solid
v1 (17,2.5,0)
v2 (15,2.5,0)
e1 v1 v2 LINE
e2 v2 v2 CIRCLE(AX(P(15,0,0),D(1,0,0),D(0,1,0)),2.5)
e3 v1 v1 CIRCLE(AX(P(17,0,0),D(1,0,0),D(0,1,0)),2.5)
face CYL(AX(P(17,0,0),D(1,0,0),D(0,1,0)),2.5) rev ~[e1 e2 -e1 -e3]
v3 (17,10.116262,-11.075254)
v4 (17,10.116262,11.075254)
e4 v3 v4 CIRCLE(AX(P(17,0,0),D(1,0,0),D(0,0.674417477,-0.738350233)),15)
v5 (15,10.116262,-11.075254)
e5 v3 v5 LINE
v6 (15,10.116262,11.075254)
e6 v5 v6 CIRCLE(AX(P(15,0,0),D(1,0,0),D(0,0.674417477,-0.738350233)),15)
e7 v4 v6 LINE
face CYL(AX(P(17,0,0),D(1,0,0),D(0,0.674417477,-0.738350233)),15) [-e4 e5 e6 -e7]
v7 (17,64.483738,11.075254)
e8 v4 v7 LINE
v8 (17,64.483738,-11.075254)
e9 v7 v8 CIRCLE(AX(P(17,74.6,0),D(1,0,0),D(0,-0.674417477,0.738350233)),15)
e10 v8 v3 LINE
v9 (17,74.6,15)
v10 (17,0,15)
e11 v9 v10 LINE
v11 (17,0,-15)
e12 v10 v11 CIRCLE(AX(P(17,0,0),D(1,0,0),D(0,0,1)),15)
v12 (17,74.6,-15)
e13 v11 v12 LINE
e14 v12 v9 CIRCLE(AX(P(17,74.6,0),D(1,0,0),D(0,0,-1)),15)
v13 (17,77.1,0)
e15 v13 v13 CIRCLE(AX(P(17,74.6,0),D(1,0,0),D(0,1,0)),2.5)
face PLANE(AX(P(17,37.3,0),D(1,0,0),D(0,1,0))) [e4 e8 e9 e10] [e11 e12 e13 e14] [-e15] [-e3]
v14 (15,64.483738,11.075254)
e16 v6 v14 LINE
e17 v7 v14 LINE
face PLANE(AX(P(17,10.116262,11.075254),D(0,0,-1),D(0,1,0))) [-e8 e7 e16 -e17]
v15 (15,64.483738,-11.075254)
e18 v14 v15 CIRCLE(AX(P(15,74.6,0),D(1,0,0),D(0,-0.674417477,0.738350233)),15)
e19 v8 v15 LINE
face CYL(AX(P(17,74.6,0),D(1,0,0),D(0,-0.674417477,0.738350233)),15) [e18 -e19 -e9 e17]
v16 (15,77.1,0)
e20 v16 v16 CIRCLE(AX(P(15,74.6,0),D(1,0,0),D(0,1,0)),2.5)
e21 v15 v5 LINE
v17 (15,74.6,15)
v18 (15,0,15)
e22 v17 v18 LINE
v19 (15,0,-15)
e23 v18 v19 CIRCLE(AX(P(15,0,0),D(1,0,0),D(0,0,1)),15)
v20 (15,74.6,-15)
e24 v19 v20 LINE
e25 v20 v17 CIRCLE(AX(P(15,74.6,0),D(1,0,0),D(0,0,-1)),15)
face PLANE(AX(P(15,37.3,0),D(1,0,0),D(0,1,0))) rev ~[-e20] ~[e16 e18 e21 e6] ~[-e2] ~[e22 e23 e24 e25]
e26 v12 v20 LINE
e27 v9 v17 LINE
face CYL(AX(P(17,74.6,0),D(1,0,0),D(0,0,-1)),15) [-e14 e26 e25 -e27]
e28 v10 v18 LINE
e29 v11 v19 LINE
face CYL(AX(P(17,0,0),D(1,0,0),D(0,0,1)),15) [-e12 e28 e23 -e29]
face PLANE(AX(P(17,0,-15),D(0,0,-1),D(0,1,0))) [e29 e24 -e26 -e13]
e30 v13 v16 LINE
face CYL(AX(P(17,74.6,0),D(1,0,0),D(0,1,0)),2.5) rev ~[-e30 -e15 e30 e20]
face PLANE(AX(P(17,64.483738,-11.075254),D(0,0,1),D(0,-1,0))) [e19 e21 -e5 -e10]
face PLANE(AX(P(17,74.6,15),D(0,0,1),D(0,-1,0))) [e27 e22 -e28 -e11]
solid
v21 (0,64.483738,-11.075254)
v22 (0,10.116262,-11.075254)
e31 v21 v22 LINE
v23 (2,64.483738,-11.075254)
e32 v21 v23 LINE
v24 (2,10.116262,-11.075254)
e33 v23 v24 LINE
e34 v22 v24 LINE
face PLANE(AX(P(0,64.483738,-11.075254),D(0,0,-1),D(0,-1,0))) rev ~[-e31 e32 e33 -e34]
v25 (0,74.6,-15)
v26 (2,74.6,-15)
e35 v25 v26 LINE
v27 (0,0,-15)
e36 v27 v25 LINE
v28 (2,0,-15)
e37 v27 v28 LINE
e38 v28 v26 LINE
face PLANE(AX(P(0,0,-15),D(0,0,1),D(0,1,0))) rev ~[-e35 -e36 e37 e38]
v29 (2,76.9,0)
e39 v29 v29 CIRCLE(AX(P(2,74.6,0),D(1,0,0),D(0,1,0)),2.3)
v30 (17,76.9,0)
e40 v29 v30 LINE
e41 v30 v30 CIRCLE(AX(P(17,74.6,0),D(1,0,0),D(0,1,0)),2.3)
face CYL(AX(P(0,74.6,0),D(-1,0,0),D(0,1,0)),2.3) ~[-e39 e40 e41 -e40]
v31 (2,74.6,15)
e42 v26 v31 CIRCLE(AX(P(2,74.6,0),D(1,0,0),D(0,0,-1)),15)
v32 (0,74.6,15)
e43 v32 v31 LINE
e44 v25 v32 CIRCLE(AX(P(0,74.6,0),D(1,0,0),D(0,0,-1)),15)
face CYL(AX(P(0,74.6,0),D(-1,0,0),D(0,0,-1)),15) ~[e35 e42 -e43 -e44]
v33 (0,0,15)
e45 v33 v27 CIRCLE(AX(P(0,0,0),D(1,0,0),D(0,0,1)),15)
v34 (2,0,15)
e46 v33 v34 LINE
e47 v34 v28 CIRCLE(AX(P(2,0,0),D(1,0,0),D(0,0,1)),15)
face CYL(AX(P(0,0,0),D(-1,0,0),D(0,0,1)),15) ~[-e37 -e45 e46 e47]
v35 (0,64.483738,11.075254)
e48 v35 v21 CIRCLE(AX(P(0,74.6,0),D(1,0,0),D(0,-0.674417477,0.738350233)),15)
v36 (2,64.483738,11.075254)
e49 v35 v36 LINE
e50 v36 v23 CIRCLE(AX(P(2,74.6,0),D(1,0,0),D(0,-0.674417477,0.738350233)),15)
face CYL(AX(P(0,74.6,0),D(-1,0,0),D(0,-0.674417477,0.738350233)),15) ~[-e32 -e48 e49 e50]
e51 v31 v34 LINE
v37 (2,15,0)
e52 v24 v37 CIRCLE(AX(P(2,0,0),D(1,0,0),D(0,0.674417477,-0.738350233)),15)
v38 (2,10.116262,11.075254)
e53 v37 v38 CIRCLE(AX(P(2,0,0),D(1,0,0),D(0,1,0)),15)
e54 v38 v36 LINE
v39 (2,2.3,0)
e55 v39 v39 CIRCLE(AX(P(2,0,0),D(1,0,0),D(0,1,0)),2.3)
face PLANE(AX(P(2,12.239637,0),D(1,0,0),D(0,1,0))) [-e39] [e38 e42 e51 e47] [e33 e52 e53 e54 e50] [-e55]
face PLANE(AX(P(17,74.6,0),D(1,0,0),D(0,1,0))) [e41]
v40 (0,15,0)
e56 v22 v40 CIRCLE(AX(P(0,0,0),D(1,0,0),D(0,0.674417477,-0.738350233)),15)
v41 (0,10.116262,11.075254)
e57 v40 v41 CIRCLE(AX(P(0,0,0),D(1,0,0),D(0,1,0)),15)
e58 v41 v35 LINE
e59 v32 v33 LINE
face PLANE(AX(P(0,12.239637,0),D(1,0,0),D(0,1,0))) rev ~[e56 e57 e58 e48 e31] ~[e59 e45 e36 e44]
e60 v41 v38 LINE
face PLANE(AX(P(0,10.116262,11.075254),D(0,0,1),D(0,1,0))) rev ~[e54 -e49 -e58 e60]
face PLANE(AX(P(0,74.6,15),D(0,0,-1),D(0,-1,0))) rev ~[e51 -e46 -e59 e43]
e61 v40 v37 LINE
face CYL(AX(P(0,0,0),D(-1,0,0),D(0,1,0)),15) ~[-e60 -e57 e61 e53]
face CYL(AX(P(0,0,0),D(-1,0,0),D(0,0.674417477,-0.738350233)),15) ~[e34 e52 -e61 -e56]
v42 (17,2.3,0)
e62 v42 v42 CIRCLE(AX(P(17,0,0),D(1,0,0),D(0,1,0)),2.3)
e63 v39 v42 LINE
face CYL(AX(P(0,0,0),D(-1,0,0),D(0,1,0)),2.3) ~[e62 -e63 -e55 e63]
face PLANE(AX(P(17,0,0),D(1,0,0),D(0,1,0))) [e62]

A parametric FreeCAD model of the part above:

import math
import FreeCAD as App
import Part
import Sketcher

V = App.Vector

doc = App.newDocument("Part")
body = doc.addObject("PartDesign::Body", "Body")

sketch1 = body.newObject("Sketcher::SketchObject", "Sketch")
sketch1.AttachmentSupport = (doc.getObject("YZ_Plane"), [""])
sketch1.MapMode = "FlatFace"
sketch1.addGeometry(Part.LineSegment(V(74.6, 15, 0), V(0, 15, 0)), False)
sketch1.addGeometry(Part.ArcOfCircle(Part.Circle(V(0, 0, 0), V(0, 0, 1), 15), math.radians(90), math.radians(270)), False)
sketch1.addGeometry(Part.LineSegment(V(0, -15, 0), V(74.6, -15, 0)), False)
sketch1.addGeometry(Part.ArcOfCircle(Part.Circle(V(74.6, 0, 0), V(0, 0, 1), 15), math.radians(-90), math.radians(90)), False)
sketch1.addGeometry(Part.Circle(V(0, 0, 0), V(0, 0, 1), 2.3), False)
sketch1.addGeometry(Part.ArcOfCircle(Part.Circle(V(0, 0, 0), V(0, 0, 1), 15), math.radians(-47.59107), math.radians(0)), False)
sketch1.addGeometry(Part.ArcOfCircle(Part.Circle(V(0, 0, 0), V(0, 0, 1), 15), math.radians(0), math.radians(47.59107)), False)
sketch1.addGeometry(Part.LineSegment(V(10.116262, 11.075254, 0), V(64.483738, 11.075254, 0)), False)
sketch1.addGeometry(Part.ArcOfCircle(Part.Circle(V(74.6, 0, 0), V(0, 0, 1), 15), math.radians(132.40893), math.radians(227.59107)), False)
sketch1.addGeometry(Part.LineSegment(V(64.483738, -11.075254, 0), V(10.116262, -11.075254, 0)), False)
sketch1.addGeometry(Part.Circle(V(74.6, 0, 0), V(0, 0, 1), 2.3), False)
sketch1.addConstraint(Sketcher.Constraint("Tangent", 0, 2, 1, 1))
sketch1.addConstraint(Sketcher.Constraint("Tangent", 1, 2, 2, 1))
sketch1.addConstraint(Sketcher.Constraint("Tangent", 2, 2, 3, 1))
sketch1.addConstraint(Sketcher.Constraint("Tangent", 3, 2, 0, 1))
sketch1.addConstraint(Sketcher.Constraint("Tangent", 5, 2, 6, 1))
sketch1.addConstraint(Sketcher.Constraint("Coincident", 6, 2, 7, 1))
sketch1.addConstraint(Sketcher.Constraint("Coincident", 7, 2, 8, 1))
sketch1.addConstraint(Sketcher.Constraint("Coincident", 8, 2, 9, 1))
sketch1.addConstraint(Sketcher.Constraint("Coincident", 9, 2, 5, 1))
sketch1.addConstraint(Sketcher.Constraint("Horizontal", 0))
sketch1.addConstraint(Sketcher.Constraint("Horizontal", 2))
sketch1.addConstraint(Sketcher.Constraint("Horizontal", 7))
sketch1.addConstraint(Sketcher.Constraint("Horizontal", 9))
sketch1.addConstraint(Sketcher.Constraint("Coincident", 1, 3, -1, 1))
sketch1.addConstraint(Sketcher.Constraint("Coincident", 4, 3, -1, 1))
sketch1.addConstraint(Sketcher.Constraint("Coincident", 5, 3, -1, 1))
sketch1.addConstraint(Sketcher.Constraint("Coincident", 8, 3, 3, 3))
sketch1.addConstraint(Sketcher.Constraint("Coincident", 10, 3, 3, 3))
sketch1.addConstraint(Sketcher.Constraint("Equal", 3, 5))
sketch1.addConstraint(Sketcher.Constraint("Equal", 5, 6))
sketch1.addConstraint(Sketcher.Constraint("Equal", 6, 8))
sketch1.addConstraint(Sketcher.Constraint("Equal", 4, 10))
sketch1.addConstraint(Sketcher.Constraint("PointOnObject", 5, 2, -1))
sketch1.addConstraint(Sketcher.Constraint("Vertical", 7, 2, 8, 2))
sketch1.addConstraint(Sketcher.Constraint("Radius", 1, 15.0))
sketch1.addConstraint(Sketcher.Constraint("Diameter", 4, 4.6))
sketch1.addConstraint(Sketcher.Constraint("DistanceX", 0, 2, 0, 1, 74.6))
sketch1.addConstraint(Sketcher.Constraint("DistanceX", 7, 1, 7, 2, 54.367476))
pad1 = body.newObject("PartDesign::Pad", "Pad")
pad1.Profile = sketch1
pad1.Length = 2

sketch2 = body.newObject("Sketcher::SketchObject", "Sketch001")
sketch2.AttachmentSupport = (doc.getObject("YZ_Plane"), [""])
sketch2.MapMode = "FlatFace"
sketch2.addGeometry(Part.Circle(V(0, 0, 0), V(0, 0, 1), 2.3), False)
sketch2.addGeometry(Part.Circle(V(74.6, 0, 0), V(0, 0, 1), 2.3), False)
sketch2.addConstraint(Sketcher.Constraint("Coincident", 0, 3, -1, 1))
sketch2.addConstraint(Sketcher.Constraint("Equal", 0, 1))
sketch2.addConstraint(Sketcher.Constraint("PointOnObject", 1, 3, -1))
sketch2.addConstraint(Sketcher.Constraint("Diameter", 0, 4.6))
sketch2.addConstraint(Sketcher.Constraint("DistanceX", -1, 1, 1, 3, 74.6))
pad2 = body.newObject("PartDesign::Pad", "Pad001")
pad2.Profile = sketch2
pad2.Length = 17
body2 = doc.addObject("PartDesign::Body", "Body001")

sketch3 = body2.newObject("Sketcher::SketchObject", "Sketch002")
sketch3.AttachmentSupport = (doc.getObject("YZ_Plane001"), [""])
sketch3.MapMode = "FlatFace"
sketch3.AttachmentOffset = App.Placement(V(0, 0, 17), App.Rotation())
sketch3.addGeometry(Part.ArcOfCircle(Part.Circle(V(74.6, 0, 0), V(0, 0, 1), 15), math.radians(-90), math.radians(90)), False)
sketch3.addGeometry(Part.LineSegment(V(74.6, 15, 0), V(0, 15, 0)), False)
sketch3.addGeometry(Part.ArcOfCircle(Part.Circle(V(0, 0, 0), V(0, 0, 1), 15), math.radians(90), math.radians(270)), False)
sketch3.addGeometry(Part.LineSegment(V(0, -15, 0), V(74.6, -15, 0)), False)
sketch3.addGeometry(Part.Circle(V(0, 0, 0), V(0, 0, 1), 2.5), False)
sketch3.addGeometry(Part.ArcOfCircle(Part.Circle(V(74.6, 0, 0), V(0, 0, 1), 15), math.radians(132.40893), math.radians(227.59107)), False)
sketch3.addGeometry(Part.LineSegment(V(64.483738, -11.075254, 0), V(10.116262, -11.075254, 0)), False)
sketch3.addGeometry(Part.ArcOfCircle(Part.Circle(V(0, 0, 0), V(0, 0, 1), 15), math.radians(-47.59107), math.radians(47.59107)), False)
sketch3.addGeometry(Part.LineSegment(V(10.116262, 11.075254, 0), V(64.483738, 11.075254, 0)), False)
sketch3.addGeometry(Part.Circle(V(74.6, 0, 0), V(0, 0, 1), 2.5), False)
sketch3.addConstraint(Sketcher.Constraint("Tangent", 0, 2, 1, 1))
sketch3.addConstraint(Sketcher.Constraint("Tangent", 1, 2, 2, 1))
sketch3.addConstraint(Sketcher.Constraint("Tangent", 2, 2, 3, 1))
sketch3.addConstraint(Sketcher.Constraint("Tangent", 3, 2, 0, 1))
sketch3.addConstraint(Sketcher.Constraint("Coincident", 5, 2, 6, 1))
sketch3.addConstraint(Sketcher.Constraint("Coincident", 6, 2, 7, 1))
sketch3.addConstraint(Sketcher.Constraint("Coincident", 7, 2, 8, 1))
sketch3.addConstraint(Sketcher.Constraint("Coincident", 8, 2, 5, 1))
sketch3.addConstraint(Sketcher.Constraint("Horizontal", 1))
sketch3.addConstraint(Sketcher.Constraint("Horizontal", 3))
sketch3.addConstraint(Sketcher.Constraint("Horizontal", 6))
sketch3.addConstraint(Sketcher.Constraint("Horizontal", 8))
sketch3.addConstraint(Sketcher.Constraint("Coincident", 2, 3, -1, 1))
sketch3.addConstraint(Sketcher.Constraint("Coincident", 4, 3, -1, 1))
sketch3.addConstraint(Sketcher.Constraint("Coincident", 7, 3, -1, 1))
sketch3.addConstraint(Sketcher.Constraint("Coincident", 5, 3, 0, 3))
sketch3.addConstraint(Sketcher.Constraint("Coincident", 9, 3, 0, 3))
sketch3.addConstraint(Sketcher.Constraint("Equal", 2, 5))
sketch3.addConstraint(Sketcher.Constraint("Equal", 5, 7))
sketch3.addConstraint(Sketcher.Constraint("Equal", 4, 9))
sketch3.addConstraint(Sketcher.Constraint("Vertical", 6, 2, 7, 2))
sketch3.addConstraint(Sketcher.Constraint("Diameter", 4, 5.0))
sketch3.addConstraint(Sketcher.Constraint("Radius", 0, 15.0))
sketch3.addConstraint(Sketcher.Constraint("DistanceX", 1, 2, 1, 1, 74.6))
sketch3.addConstraint(Sketcher.Constraint("DistanceX", 6, 2, 6, 1, 54.367476))
pad3 = body2.newObject("PartDesign::Pad", "Pad002")
pad3.Profile = sketch3
pad3.Length = 2
pad3.Reversed = True

doc.recompute()
